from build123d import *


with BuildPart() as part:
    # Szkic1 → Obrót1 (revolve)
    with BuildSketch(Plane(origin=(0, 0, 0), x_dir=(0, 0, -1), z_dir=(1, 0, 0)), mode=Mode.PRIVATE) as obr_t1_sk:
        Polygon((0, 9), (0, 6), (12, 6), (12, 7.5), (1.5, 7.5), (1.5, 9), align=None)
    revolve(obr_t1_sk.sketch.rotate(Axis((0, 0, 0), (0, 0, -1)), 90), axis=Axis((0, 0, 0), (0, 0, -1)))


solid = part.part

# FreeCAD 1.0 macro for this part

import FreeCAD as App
import Part
import Sketcher


def add_polygon(sketch, points):
    """Adds a closed chain of lines whose ends are joined by coincident constraints."""
    first, n = sketch.GeometryCount, len(points)
    for a, b in zip(points, points[1:] + points[:1]):
        sketch.addGeometry(Part.LineSegment(App.Vector(*a, 0), App.Vector(*b, 0)), False)
    for i in range(n):
        sketch.addConstraint(Sketcher.Constraint("Coincident", first + i, 2, first + (i + 1) % n, 1))

doc = App.newDocument("Part")
body = doc.addObject("PartDesign::Body", "Body")

# Sketch on YZ plane
sketch1 = doc.addObject("Sketcher::SketchObject", "Sketch")
body.addObject(sketch1)
sketch1.AttachmentSupport = (doc.YZ_Plane, [""])
sketch1.MapMode = "FlatFace"
add_polygon(sketch1, [(9, 0), (6, 0), (6, -12), (7.5, -12), (7.5, -1.5), (9, -1.5)])  # lines 0-5
sketch1.addConstraint([
    Sketcher.Constraint("Horizontal", 0),
    Sketcher.Constraint("Vertical", 1),
    Sketcher.Constraint("Horizontal", 2),
    Sketcher.Constraint("Vertical", 3),
    Sketcher.Constraint("Horizontal", 4),
    Sketcher.Constraint("Vertical", 5),
    Sketcher.Constraint("PointOnObject", 0, 2, -1),
    Sketcher.Constraint("Equal", 2, 4),
    Sketcher.Constraint("Equal", 4, 5),
    Sketcher.Constraint("DistanceX", 0, 2, 0, 1, 3.0),
    Sketcher.Constraint("DistanceY", 1, 2, 1, 1, 12.0),
    Sketcher.Constraint("DistanceX", -1, 1, 0, 2, 6.0),
])
revolution = doc.addObject("PartDesign::Revolution", "Revolution")
body.addObject(revolution)
revolution.Profile = sketch1
revolution.ReferenceAxis = (sketch1, ["V_Axis"])
revolution.Angle = 360

doc.recompute()
